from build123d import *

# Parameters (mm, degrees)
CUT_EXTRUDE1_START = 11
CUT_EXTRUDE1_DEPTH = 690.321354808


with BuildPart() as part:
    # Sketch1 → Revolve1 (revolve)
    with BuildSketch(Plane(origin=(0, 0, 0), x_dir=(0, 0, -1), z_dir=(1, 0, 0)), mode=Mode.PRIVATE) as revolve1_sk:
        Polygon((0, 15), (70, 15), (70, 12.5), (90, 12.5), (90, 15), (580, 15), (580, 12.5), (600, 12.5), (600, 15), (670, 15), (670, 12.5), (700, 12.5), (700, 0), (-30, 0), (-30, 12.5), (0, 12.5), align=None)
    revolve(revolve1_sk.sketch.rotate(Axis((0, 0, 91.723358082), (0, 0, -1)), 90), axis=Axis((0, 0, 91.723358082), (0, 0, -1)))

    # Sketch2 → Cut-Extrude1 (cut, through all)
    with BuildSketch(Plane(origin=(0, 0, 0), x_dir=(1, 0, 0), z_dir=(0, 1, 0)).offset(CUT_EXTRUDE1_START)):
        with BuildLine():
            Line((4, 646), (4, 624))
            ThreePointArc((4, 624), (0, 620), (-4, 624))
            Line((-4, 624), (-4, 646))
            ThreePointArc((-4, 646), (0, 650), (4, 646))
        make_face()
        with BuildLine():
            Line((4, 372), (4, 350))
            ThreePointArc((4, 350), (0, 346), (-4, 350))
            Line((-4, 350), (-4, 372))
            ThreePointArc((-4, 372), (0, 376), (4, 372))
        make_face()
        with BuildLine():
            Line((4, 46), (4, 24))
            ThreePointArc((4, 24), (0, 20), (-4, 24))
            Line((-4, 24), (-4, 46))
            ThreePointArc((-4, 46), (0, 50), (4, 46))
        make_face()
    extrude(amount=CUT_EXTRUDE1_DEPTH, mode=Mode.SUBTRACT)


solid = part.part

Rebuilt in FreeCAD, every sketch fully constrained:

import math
import FreeCAD as App
import Part
import Sketcher

V = App.Vector
Q = App.Units.Quantity

doc = App.newDocument("Part")
body = doc.addObject("PartDesign::Body", "Body")

# Sketch on YZ plane
sketch1 = body.newObject("Sketcher::SketchObject", "Sketch")
sketch1.AttachmentSupport = (doc.getObject("YZ_Plane"), [""])
sketch1.MapMode = "FlatFace"
sketch1.addGeometry([
    Part.LineSegment(V(15, -70, 0), V(15, 0, 0)),  # 0
    Part.LineSegment(V(15, 0, 0), V(12.5, 0, 0)),  # 1
    Part.LineSegment(V(12.5, 0, 0), V(12.5, 30, 0)),  # 2
    Part.LineSegment(V(12.5, 30, 0), V(0, 30, 0)),  # 3
    Part.LineSegment(V(0, 30, 0), V(0, -700, 0)),  # 4
    Part.LineSegment(V(0, -700, 0), V(12.5, -700, 0)),  # 5
    Part.LineSegment(V(12.5, -700, 0), V(12.5, -670, 0)),  # 6
    Part.LineSegment(V(12.5, -670, 0), V(15, -670, 0)),  # 7
    Part.LineSegment(V(15, -670, 0), V(15, -600, 0)),  # 8
    Part.LineSegment(V(15, -600, 0), V(12.5, -600, 0)),  # 9
    Part.LineSegment(V(12.5, -600, 0), V(12.5, -580, 0)),  # 10
    Part.LineSegment(V(12.5, -580, 0), V(15, -580, 0)),  # 11
    Part.LineSegment(V(15, -580, 0), V(15, -90, 0)),  # 12
    Part.LineSegment(V(15, -90, 0), V(12.5, -90, 0)),  # 13
    Part.LineSegment(V(12.5, -90, 0), V(12.5, -70, 0)),  # 14
    Part.LineSegment(V(12.5, -70, 0), V(15, -70, 0)),  # 15
], False)
sketch1.addConstraint([
    Sketcher.Constraint("Coincident", 0, 2, 1, 1),
    Sketcher.Constraint("Coincident", 1, 2, 2, 1),
    Sketcher.Constraint("Coincident", 2, 2, 3, 1),
    Sketcher.Constraint("Coincident", 3, 2, 4, 1),
    Sketcher.Constraint("Coincident", 4, 2, 5, 1),
    Sketcher.Constraint("Coincident", 5, 2, 6, 1),
    Sketcher.Constraint("Coincident", 6, 2, 7, 1),
    Sketcher.Constraint("Coincident", 7, 2, 8, 1),
    Sketcher.Constraint("Coincident", 8, 2, 9, 1),
    Sketcher.Constraint("Coincident", 9, 2, 10, 1),
    Sketcher.Constraint("Coincident", 10, 2, 11, 1),
    Sketcher.Constraint("Coincident", 11, 2, 12, 1),
    Sketcher.Constraint("Coincident", 12, 2, 13, 1),
    Sketcher.Constraint("Coincident", 13, 2, 14, 1),
    Sketcher.Constraint("Coincident", 14, 2, 15, 1),
    Sketcher.Constraint("Coincident", 15, 2, 0, 1),
    Sketcher.Constraint("Vertical", 0),
    Sketcher.Constraint("Horizontal", 1),
    Sketcher.Constraint("Vertical", 2),
    Sketcher.Constraint("Horizontal", 3),
    Sketcher.Constraint("Vertical", 4),
    Sketcher.Constraint("Horizontal", 5),
    Sketcher.Constraint("Vertical", 6),
    Sketcher.Constraint("Horizontal", 7),
    Sketcher.Constraint("Vertical", 8),
    Sketcher.Constraint("Horizontal", 9),
    Sketcher.Constraint("Vertical", 10),
    Sketcher.Constraint("Horizontal", 11),
    Sketcher.Constraint("Vertical", 12),
    Sketcher.Constraint("Horizontal", 13),
    Sketcher.Constraint("Vertical", 14),
    Sketcher.Constraint("Horizontal", 15),
    Sketcher.Constraint("PointOnObject", 0, 2, -1),
    Sketcher.Constraint("PointOnObject", 3, 2, -2),
    Sketcher.Constraint("Vertical", 2, 2, 5, 2),
    Sketcher.Constraint("Vertical", 0, 2, 7, 2),
    Sketcher.Constraint("Vertical", 6, 2, 9, 2),
    Sketcher.Constraint("Vertical", 8, 2, 11, 2),
    Sketcher.Constraint("Vertical", 10, 2, 13, 2),
    Sketcher.Constraint("Equal", 2, 6),
    Sketcher.Constraint("Equal", 0, 8),
    Sketcher.Constraint("Equal", 10, 14),
    Sketcher.Constraint("DistanceY", 0, 1, 0, 2, Q("70 mm")),
    Sketcher.Constraint("DistanceY", 2, 1, 2, 2, Q("30 mm")),
    Sketcher.Constraint("DistanceY", 4, 2, 4, 1, Q("730 mm")),
    Sketcher.Constraint("DistanceY", 10, 1, 10, 2, Q("20 mm")),
    Sketcher.Constraint("DistanceX", 1, 2, 1, 1, Q("2.5 mm")),
    Sketcher.Constraint("DistanceX", 3, 2, 3, 1, Q("12.5 mm")),
])
revolution = body.newObject("PartDesign::Revolution", "Revolution")
revolution.Profile = sketch1
revolution.ReferenceAxis = (sketch1, ["V_Axis"])
revolution.Angle = 360

# Sketch on XZ plane
sketch2 = body.newObject("Sketcher::SketchObject", "Sketch001")
sketch2.AttachmentSupport = (doc.getObject("XZ_Plane"), [""])
sketch2.MapMode = "FlatFace"
sketch2.AttachmentOffset = App.Placement(V(0, 0, -11), App.Rotation())
sketch2.addGeometry([
    Part.LineSegment(V(4, -624, 0), V(4, -646, 0)),  # 0
    Part.ArcOfCircle(Part.Circle(V(0, -646, 0), V(0, 0, 1), 4), math.radians(180), math.radians(360)),  # 1
    Part.LineSegment(V(-4, -646, 0), V(-4, -624, 0)),  # 2
    Part.ArcOfCircle(Part.Circle(V(0, -624, 0), V(0, 0, 1), 4), math.radians(0), math.radians(180)),  # 3
    Part.LineSegment(V(4, -350, 0), V(4, -372, 0)),  # 4
    Part.ArcOfCircle(Part.Circle(V(0, -372, 0), V(0, 0, 1), 4), math.radians(180), math.radians(360)),  # 5
    Part.LineSegment(V(-4, -372, 0), V(-4, -350, 0)),  # 6
    Part.ArcOfCircle(Part.Circle(V(0, -350, 0), V(0, 0, 1), 4), math.radians(0), math.radians(180)),  # 7
    Part.LineSegment(V(4, -24, 0), V(4, -46, 0)),  # 8
    Part.ArcOfCircle(Part.Circle(V(0, -46, 0), V(0, 0, 1), 4), math.radians(180), math.radians(360)),  # 9
    Part.LineSegment(V(-4, -46, 0), V(-4, -24, 0)),  # 10
    Part.ArcOfCircle(Part.Circle(V(0, -24, 0), V(0, 0, 1), 4), math.radians(0), math.radians(180)),  # 11
], False)
sketch2.addConstraint([
    Sketcher.Constraint("Tangent", 0, 2, 1, 2),
    Sketcher.Constraint("Tangent", 1, 1, 2, 1),
    Sketcher.Constraint("Tangent", 2, 2, 3, 2),
    Sketcher.Constraint("Tangent", 3, 1, 0, 1),
    Sketcher.Constraint("Tangent", 4, 2, 5, 2),
    Sketcher.Constraint("Tangent", 5, 1, 6, 1),
    Sketcher.Constraint("Tangent", 6, 2, 7, 2),
    Sketcher.Constraint("Tangent", 7, 1, 4, 1),
    Sketcher.Constraint("Tangent", 8, 2, 9, 2),
    Sketcher.Constraint("Tangent", 9, 1, 10, 1),
    Sketcher.Constraint("Tangent", 10, 2, 11, 2),
    Sketcher.Constraint("Tangent", 11, 1, 8, 1),
    Sketcher.Constraint("Vertical", 0),
    Sketcher.Constraint("Vertical", 2),
    Sketcher.Constraint("Vertical", 4),
    Sketcher.Constraint("Vertical", 6),
    Sketcher.Constraint("Vertical", 8),
    Sketcher.Constraint("Vertical", 10),
    Sketcher.Constraint("Equal", 3, 5),
    Sketcher.Constraint("Equal", 7, 9),
    Sketcher.Constraint("PointOnObject", 1, 3, -2),
    Sketcher.Constraint("PointOnObject", 5, 3, -2),
    Sketcher.Constraint("PointOnObject", 9, 3, -2),
    Sketcher.Constraint("Equal", 2, 4),
    Sketcher.Constraint("Equal", 6, 8),
    Sketcher.Constraint("Radius", 1, Q("4 mm")),
    Sketcher.Constraint("DistanceY", 0, 2, 0, 1, Q("22 mm")),
    Sketcher.Constraint("DistanceY", 1, 3, -1, 1, Q("646 mm")),
    Sketcher.Constraint("DistanceY", 5, 3, -1, 1, Q("372 mm")),
    Sketcher.Constraint("DistanceY", 9, 3, -1, 1, Q("46 mm")),
])
pocket1 = body.newObject("PartDesign::Pocket", "Pocket")
pocket1.Profile = sketch2
pocket1.Type = "ThroughAll"

doc.recompute()
